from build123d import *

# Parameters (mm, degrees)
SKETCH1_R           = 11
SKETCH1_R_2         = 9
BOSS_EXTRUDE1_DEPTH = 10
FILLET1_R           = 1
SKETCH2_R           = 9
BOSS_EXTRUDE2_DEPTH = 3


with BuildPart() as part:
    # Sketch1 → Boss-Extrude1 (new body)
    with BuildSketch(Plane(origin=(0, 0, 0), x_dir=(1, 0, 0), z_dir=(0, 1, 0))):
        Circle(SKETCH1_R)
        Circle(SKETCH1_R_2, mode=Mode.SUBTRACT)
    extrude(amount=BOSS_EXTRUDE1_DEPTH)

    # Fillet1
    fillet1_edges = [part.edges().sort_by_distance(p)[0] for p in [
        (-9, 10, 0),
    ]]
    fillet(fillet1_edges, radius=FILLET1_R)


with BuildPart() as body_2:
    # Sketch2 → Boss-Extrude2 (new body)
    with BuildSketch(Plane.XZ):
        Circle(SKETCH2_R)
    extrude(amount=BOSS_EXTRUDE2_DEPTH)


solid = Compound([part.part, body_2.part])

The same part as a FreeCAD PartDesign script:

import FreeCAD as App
import Part
import Sketcher
from FreeCAD import Vector


def edges_at(feature, points):
    """Names of the edges that pass closest to the given points."""
    edges = feature.Shape.Edges
    near = lambda p: min(range(len(edges)), key=lambda i: edges[i].distToShape(Part.Vertex(*p))[0])
    return sorted({f"Edge{near(p) + 1}" for p in points})

doc = App.newDocument("Part")
body = doc.addObject("PartDesign::Body", "Body")

# Sketch on XZ plane
sketch1 = doc.addObject("Sketcher::SketchObject", "Sketch")
body.addObject(sketch1)
sketch1.AttachmentSupport = (doc.XZ_Plane, [""])
sketch1.MapMode = "FlatFace"
sketch1.addGeometry([
    Part.Circle(Vector(0, 0, 0), Vector(0, 0, 1), 11),
    Part.Circle(Vector(0, 0, 0), Vector(0, 0, 1), 9),
], False)
sketch1.addConstraint([
    Sketcher.Constraint("Coincident", 0, 3, -1, 1),
    Sketcher.Constraint("Coincident", 1, 3, -1, 1),
    Sketcher.Constraint("Diameter", 0, 22.0),
    Sketcher.Constraint("Diameter", 1, 18.0),
])
pad1 = doc.addObject("PartDesign::Pad", "Pad")
body.addObject(pad1)
pad1.Profile = sketch1
pad1.Length = 10
pad1.Reversed = True
doc.recompute()

fillet = doc.addObject("PartDesign::Fillet", "Fillet")
body.addObject(fillet)
fillet.Base = (pad1, edges_at(pad1, [(-9, 10, 0)]))
fillet.Radius = 1
body2 = doc.addObject("PartDesign::Body", "Body001")

# Sketch on XZ plane
sketch2 = doc.addObject("Sketcher::SketchObject", "Sketch001")
body2.addObject(sketch2)
sketch2.AttachmentSupport = (doc.getObject("XZ_Plane001"), [""])
sketch2.MapMode = "FlatFace"
sketch2.addGeometry(Part.Circle(Vector(0, 0, 0), Vector(0, 0, 1), 9), False)
sketch2.addConstraint([
    Sketcher.Constraint("Coincident", 0, 3, -1, 1),
    Sketcher.Constraint("Diameter", 0, 18.0),
])
pad2 = doc.addObject("PartDesign::Pad", "Pad001")
body2.addObject(pad2)
pad2.Profile = sketch2
pad2.Length = 3

doc.recompute()
